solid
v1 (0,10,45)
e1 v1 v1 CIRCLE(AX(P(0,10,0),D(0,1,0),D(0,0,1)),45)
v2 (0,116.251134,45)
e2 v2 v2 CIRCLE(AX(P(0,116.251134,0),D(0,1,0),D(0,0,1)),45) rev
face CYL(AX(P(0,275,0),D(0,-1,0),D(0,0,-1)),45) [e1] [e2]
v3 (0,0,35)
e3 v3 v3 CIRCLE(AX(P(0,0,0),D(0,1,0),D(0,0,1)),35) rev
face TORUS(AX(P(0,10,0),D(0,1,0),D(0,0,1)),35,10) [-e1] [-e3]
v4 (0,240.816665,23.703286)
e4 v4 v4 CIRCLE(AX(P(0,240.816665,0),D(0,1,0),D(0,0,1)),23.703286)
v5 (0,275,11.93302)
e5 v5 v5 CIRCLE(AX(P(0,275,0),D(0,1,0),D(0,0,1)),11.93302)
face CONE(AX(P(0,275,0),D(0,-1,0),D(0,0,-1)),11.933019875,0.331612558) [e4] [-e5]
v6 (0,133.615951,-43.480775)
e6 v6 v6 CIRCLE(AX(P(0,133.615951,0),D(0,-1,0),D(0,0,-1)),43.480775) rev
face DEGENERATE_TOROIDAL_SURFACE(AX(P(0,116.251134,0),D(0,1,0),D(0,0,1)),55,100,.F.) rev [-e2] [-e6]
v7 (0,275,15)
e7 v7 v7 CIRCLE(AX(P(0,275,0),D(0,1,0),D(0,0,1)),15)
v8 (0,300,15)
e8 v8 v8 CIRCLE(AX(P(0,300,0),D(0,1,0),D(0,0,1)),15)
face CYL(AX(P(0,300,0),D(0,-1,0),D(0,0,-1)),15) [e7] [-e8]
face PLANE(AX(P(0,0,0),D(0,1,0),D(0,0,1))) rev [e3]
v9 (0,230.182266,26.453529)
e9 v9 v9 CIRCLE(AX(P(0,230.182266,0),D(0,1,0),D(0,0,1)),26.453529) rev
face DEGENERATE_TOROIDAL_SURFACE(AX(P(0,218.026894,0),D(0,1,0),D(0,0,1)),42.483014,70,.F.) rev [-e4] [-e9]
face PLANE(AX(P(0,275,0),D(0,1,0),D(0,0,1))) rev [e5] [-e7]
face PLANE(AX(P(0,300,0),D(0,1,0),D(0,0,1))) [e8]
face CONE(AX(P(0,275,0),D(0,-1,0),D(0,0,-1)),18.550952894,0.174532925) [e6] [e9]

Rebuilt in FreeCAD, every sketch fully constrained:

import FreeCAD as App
import Part
import Sketcher
from FreeCAD import Vector
Q = App.Units.Quantity


def edges_at(feature, points):
    """Names of the edges that pass closest to the given points."""
    edges = feature.Shape.Edges
    near = lambda p: min(range(len(edges)), key=lambda i: edges[i].distToShape(Part.Vertex(*p))[0])
    return sorted({f"Edge{near(p) + 1}" for p in points})

doc = App.newDocument("Part")
body = doc.addObject("PartDesign::Body", "Body")

# Sketch on XZ plane
sketch1 = body.newObject("Sketcher::SketchObject", "Sketch")
sketch1.AttachmentSupport = (doc.getObject("XZ_Plane"), [""])
sketch1.MapMode = "FlatFace"
sketch1.addGeometry(Part.Circle(Vector(0, 0, 0), Vector(0, 0, 1), 45), False)
sketch1.addConstraint(Sketcher.Constraint("Coincident", 0, 3, -1, 1))
sketch1.addConstraint(Sketcher.Constraint("Diameter", 0, Q("90 mm")))
pad1 = body.newObject("PartDesign::Pad", "Pad")
pad1.Profile = sketch1
pad1.Length = 275
pad1.Reversed = True
doc.recompute()

fillet = body.newObject("PartDesign::Fillet", "Fillet")
fillet.Base = (pad1, edges_at(pad1, [(0, 0, -45)]))
fillet.Radius = 10
doc.recompute()

chamfer = body.newObject("PartDesign::Chamfer", "Chamfer")
chamfer.Base = (fillet, edges_at(fillet, [(0, 275, -45)]))
chamfer.ChamferType = "Two distances"
chamfer.Size = 150
chamfer.Size2 = 26.449047
doc.recompute()

fillet2 = body.newObject("PartDesign::Fillet", "Fillet001")
fillet2.Base = (chamfer, edges_at(chamfer, [(0, 125, -45)]))
fillet2.Radius = 100
doc.recompute()

chamfer2 = body.newObject("PartDesign::Chamfer", "Chamfer001")
chamfer2.Base = (fillet2, edges_at(fillet2, [(0, 275, -18.551)]))
chamfer2.ChamferType = "Two distances"
chamfer2.Size = 40
chamfer2.Size2 = 6.617933
doc.recompute()

fillet3 = body.newObject("PartDesign::Fillet", "Fillet002")
fillet3.Base = (chamfer2, edges_at(chamfer2, [(0, 235.608, -25.497)]))
fillet3.Radius = 70

# Sketch on XZ plane
sketch2 = body.newObject("Sketcher::SketchObject", "Sketch001")
sketch2.AttachmentSupport = (doc.getObject("XZ_Plane"), [""])
sketch2.MapMode = "FlatFace"
sketch2.AttachmentOffset = App.Placement(Vector(0, 0, -275), App.Rotation())
sketch2.addGeometry(Part.Circle(Vector(0, 0, 0), Vector(0, 0, 1), 15), False)
sketch2.addConstraint(Sketcher.Constraint("Coincident", 0, 3, -1, 1))
sketch2.addConstraint(Sketcher.Constraint("Diameter", 0, Q("30 mm")))
pad2 = body.newObject("PartDesign::Pad", "Pad001")
pad2.Profile = sketch2
pad2.Length = 25
pad2.Reversed = True

doc.recompute()
